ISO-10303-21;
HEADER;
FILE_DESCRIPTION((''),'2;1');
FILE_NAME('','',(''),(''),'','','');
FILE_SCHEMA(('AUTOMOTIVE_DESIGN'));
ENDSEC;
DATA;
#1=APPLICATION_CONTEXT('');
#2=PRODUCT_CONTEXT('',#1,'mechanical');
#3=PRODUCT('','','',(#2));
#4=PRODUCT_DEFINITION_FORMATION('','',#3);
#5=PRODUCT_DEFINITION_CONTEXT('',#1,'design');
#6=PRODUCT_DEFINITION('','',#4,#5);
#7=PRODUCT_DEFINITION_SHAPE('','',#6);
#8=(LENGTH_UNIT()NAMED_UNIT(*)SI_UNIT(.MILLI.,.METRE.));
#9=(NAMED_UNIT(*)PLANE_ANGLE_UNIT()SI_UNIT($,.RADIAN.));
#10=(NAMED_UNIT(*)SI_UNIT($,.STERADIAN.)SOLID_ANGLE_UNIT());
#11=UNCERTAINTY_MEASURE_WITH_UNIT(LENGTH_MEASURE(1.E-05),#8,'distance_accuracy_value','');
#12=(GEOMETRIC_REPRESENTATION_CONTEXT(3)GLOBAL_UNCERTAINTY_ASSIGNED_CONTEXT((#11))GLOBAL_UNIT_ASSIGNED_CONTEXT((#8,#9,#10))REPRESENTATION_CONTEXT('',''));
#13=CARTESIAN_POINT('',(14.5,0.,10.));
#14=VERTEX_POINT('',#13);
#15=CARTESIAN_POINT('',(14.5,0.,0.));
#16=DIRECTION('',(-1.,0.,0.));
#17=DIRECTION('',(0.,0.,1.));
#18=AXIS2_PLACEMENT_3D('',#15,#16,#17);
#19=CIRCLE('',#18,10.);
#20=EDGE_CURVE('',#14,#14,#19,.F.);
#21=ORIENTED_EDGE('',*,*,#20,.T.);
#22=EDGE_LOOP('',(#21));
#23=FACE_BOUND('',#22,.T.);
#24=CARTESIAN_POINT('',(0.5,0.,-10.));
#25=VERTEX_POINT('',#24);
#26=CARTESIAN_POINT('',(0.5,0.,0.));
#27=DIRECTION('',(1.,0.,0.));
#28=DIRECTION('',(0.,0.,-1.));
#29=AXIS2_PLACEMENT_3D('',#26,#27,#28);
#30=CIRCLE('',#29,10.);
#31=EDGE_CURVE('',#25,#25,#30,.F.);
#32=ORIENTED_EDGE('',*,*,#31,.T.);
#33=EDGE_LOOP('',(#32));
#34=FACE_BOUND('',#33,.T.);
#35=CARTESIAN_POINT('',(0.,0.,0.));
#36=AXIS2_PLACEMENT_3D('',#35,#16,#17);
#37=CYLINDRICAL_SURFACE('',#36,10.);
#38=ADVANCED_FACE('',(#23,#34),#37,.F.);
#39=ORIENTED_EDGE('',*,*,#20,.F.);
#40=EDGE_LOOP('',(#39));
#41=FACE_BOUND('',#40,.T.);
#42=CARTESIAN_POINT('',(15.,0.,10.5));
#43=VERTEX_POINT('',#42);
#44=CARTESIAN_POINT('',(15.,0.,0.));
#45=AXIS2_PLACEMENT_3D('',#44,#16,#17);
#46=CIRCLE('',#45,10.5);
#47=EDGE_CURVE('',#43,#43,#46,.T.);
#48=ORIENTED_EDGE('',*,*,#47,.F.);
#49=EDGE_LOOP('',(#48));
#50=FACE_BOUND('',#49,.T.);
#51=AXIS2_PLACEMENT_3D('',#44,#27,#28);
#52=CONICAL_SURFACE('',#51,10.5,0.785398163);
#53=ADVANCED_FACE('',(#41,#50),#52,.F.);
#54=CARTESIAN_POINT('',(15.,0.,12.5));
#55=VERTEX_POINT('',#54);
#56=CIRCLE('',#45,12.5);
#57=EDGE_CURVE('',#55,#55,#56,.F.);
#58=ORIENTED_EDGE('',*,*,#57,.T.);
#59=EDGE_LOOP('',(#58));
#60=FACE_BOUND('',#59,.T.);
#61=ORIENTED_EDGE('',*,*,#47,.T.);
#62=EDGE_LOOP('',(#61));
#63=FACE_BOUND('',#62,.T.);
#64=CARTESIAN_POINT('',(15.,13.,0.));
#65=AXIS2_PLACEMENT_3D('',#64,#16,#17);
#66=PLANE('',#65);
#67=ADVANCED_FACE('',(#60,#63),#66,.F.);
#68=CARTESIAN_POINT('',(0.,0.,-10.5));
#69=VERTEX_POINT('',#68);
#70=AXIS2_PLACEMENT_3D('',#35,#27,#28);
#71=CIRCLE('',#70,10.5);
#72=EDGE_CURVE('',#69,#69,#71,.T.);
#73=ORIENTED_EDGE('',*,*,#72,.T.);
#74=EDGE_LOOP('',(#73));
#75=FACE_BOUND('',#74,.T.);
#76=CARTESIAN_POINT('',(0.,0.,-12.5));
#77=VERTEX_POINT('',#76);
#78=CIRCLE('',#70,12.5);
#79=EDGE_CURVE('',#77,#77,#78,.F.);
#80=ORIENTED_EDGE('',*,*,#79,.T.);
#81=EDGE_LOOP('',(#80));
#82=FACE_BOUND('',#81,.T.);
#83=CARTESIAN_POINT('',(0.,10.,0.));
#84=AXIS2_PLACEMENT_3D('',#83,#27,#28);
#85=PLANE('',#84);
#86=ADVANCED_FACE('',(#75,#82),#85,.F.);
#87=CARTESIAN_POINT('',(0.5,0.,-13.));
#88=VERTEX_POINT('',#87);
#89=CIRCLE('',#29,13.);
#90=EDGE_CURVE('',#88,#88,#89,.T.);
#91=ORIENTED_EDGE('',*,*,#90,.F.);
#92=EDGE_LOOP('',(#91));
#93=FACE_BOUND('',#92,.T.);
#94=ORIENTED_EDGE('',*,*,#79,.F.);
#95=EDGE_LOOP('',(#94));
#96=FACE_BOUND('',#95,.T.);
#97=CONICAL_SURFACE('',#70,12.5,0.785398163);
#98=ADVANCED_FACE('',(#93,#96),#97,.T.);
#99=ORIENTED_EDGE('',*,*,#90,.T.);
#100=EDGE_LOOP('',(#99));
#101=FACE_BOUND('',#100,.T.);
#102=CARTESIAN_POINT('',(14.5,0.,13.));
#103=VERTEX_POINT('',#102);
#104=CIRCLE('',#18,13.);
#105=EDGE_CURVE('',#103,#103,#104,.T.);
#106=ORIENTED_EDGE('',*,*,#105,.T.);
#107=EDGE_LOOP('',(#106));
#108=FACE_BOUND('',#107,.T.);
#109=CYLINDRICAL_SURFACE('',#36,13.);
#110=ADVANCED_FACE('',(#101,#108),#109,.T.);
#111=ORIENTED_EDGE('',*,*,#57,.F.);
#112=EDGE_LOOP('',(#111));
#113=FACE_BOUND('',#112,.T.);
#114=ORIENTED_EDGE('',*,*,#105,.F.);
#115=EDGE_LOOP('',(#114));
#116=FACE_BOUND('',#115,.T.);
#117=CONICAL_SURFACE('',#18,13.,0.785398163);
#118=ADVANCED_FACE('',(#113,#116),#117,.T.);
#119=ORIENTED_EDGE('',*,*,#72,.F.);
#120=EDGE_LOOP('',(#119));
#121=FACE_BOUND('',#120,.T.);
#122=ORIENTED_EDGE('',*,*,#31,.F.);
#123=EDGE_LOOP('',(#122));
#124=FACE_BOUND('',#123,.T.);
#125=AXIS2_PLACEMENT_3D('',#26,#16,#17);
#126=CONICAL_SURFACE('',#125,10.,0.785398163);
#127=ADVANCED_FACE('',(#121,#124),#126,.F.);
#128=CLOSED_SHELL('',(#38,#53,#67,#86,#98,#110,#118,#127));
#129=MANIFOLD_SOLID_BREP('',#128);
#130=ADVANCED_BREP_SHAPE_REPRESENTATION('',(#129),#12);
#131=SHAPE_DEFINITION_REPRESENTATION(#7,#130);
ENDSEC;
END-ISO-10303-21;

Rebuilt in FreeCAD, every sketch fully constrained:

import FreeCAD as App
import Part
import Sketcher
from FreeCAD import Vector
Q = App.Units.Quantity


def edges_at(feature, points):
    """Names of the edges that pass closest to the given points."""
    edges = feature.Shape.Edges
    near = lambda p: min(range(len(edges)), key=lambda i: edges[i].distToShape(Part.Vertex(*p))[0])
    return sorted({f"Edge{near(p) + 1}" for p in points})

doc = App.newDocument("Part")
body = doc.addObject("PartDesign::Body", "Body")

# Sketch on XY plane
sketch1 = doc.addObject("Sketcher::SketchObject", "Sketch")
body.addObject(sketch1)
sketch1.AttachmentSupport = (doc.XY_Plane, [""])
sketch1.MapMode = "FlatFace"
sketch1.addGeometry(Part.LineSegment(Vector(0, 13, 0), Vector(0, 10, 0)), False)
sketch1.addGeometry(Part.LineSegment(Vector(0, 10, 0), Vector(15, 10, 0)), False)
sketch1.addGeometry(Part.LineSegment(Vector(15, 10, 0), Vector(15, 13, 0)), False)
sketch1.addGeometry(Part.LineSegment(Vector(15, 13, 0), Vector(0, 13, 0)), False)
sketch1.addConstraint(Sketcher.Constraint("Coincident", 0, 2, 1, 1))
sketch1.addConstraint(Sketcher.Constraint("Coincident", 1, 2, 2, 1))
sketch1.addConstraint(Sketcher.Constraint("Coincident", 2, 2, 3, 1))
sketch1.addConstraint(Sketcher.Constraint("Coincident", 3, 2, 0, 1))
sketch1.addConstraint(Sketcher.Constraint("Vertical", 0))
sketch1.addConstraint(Sketcher.Constraint("Horizontal", 1))
sketch1.addConstraint(Sketcher.Constraint("Vertical", 2))
sketch1.addConstraint(Sketcher.Constraint("Horizontal", 3))
sketch1.addConstraint(Sketcher.Constraint("PointOnObject", 0, 2, -2))
sketch1.addConstraint(Sketcher.Constraint("DistanceX", 1, 1, 1, 2, Q("15 mm")))
sketch1.addConstraint(Sketcher.Constraint("DistanceY", 0, 2, 0, 1, Q("3 mm")))
sketch1.addConstraint(Sketcher.Constraint("DistanceY", -1, 1, 0, 2, Q("10 mm")))
revolution = doc.addObject("PartDesign::Revolution", "Revolution")
body.addObject(revolution)
revolution.Profile = sketch1
revolution.ReferenceAxis = (sketch1, ["H_Axis"])
revolution.Angle = 360
doc.recompute()

chamfer = doc.addObject("PartDesign::Chamfer", "Chamfer")
body.addObject(chamfer)
chamfer.Base = (revolution, edges_at(revolution, [
    (0, 0, -10),
    (15, 0, -10),
    (15, 0, -13),
    (0, 0, -13),
]))
chamfer.Size = 0.5

doc.recompute()
